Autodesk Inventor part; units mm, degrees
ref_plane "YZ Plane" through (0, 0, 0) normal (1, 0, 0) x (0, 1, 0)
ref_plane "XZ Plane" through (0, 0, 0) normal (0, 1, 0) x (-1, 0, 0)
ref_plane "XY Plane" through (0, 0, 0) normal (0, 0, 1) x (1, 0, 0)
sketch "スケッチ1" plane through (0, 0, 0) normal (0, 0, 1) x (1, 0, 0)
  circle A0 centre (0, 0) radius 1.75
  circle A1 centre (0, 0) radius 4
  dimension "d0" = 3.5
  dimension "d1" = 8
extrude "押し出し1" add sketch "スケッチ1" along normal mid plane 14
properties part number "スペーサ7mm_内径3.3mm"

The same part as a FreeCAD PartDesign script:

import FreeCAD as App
import Part
import Sketcher
from FreeCAD import Vector
Q = App.Units.Quantity

doc = App.newDocument("Part")
body = doc.addObject("PartDesign::Body", "Body")

sketch1 = body.newObject("Sketcher::SketchObject", "Sketch")
sketch1.AttachmentSupport = (doc.getObject("XY_Plane"), [""])
sketch1.MapMode = "FlatFace"
sketch1.addGeometry([
    Part.Circle(Vector(0, 0, 0), Vector(0, 0, 1), 4),
    Part.Circle(Vector(0, 0, 0), Vector(0, 0, 1), 1.8),
], False)
sketch1.addConstraint([
    Sketcher.Constraint("Coincident", 0, 3, -1, 1),
    Sketcher.Constraint("Coincident", 1, 3, -1, 1),
    Sketcher.Constraint("Diameter", 0, Q("8 mm")),
    Sketcher.Constraint("Diameter", 1, Q("3.5 mm")),
])
pad1 = body.newObject("PartDesign::Pad", "Pad")
pad1.Profile = sketch1
pad1.Length = 14
pad1.Midplane = True

doc.recompute()
